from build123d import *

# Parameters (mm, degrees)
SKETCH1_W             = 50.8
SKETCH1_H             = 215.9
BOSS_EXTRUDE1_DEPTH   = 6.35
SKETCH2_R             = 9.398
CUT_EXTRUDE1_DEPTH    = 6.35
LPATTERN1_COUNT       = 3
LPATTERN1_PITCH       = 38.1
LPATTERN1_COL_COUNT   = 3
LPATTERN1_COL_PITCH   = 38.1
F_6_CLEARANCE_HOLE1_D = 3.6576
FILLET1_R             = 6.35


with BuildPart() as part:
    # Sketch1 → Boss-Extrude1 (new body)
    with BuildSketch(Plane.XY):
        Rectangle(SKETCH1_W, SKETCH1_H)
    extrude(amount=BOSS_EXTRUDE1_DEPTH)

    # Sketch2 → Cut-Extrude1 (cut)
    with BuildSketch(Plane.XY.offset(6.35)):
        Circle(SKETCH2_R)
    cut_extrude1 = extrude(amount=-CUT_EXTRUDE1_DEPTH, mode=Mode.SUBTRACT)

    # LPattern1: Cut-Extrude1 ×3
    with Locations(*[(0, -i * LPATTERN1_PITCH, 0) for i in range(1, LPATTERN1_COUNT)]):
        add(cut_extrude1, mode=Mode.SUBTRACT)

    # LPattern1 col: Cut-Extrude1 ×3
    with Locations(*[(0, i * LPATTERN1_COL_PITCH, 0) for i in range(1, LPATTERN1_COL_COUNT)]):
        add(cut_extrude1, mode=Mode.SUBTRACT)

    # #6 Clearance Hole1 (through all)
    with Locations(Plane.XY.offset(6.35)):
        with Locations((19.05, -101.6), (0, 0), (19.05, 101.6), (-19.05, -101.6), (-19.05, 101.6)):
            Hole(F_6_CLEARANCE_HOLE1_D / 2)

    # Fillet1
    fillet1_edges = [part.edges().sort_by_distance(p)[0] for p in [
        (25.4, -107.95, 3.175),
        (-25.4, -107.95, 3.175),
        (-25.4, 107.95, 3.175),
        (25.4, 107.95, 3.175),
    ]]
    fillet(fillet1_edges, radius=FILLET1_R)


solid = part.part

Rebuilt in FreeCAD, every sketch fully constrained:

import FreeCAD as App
import Part
import Sketcher

V = App.Vector
Q = App.Units.Quantity


def edges_at(feature, points):
    """Names of the edges that pass closest to the given points."""
    edges = feature.Shape.Edges
    near = lambda p: min(range(len(edges)), key=lambda i: edges[i].distToShape(Part.Vertex(*p))[0])
    return sorted({f"Edge{near(p) + 1}" for p in points})

doc = App.newDocument("Part")
body = doc.addObject("PartDesign::Body", "Body")

# Sketch on XY plane
sketch1 = body.newObject("Sketcher::SketchObject", "Sketch")
sketch1.AttachmentSupport = (doc.getObject("XY_Plane"), [""])
sketch1.MapMode = "FlatFace"
sketch1.addGeometry([
    Part.LineSegment(V(-25, 108, 0), V(-25, -108, 0)),
    Part.LineSegment(V(-25, -108, 0), V(25, -108, 0)),
    Part.LineSegment(V(25, -108, 0), V(25, 108, 0)),
    Part.LineSegment(V(25, 108, 0), V(-25, 108, 0)),
], False)
sketch1.addConstraint([
    Sketcher.Constraint("Coincident", 0, 2, 1, 1),
    Sketcher.Constraint("Coincident", 1, 2, 2, 1),
    Sketcher.Constraint("Coincident", 2, 2, 3, 1),
    Sketcher.Constraint("Coincident", 3, 2, 0, 1),
    Sketcher.Constraint("Vertical", 0),
    Sketcher.Constraint("Horizontal", 1),
    Sketcher.Constraint("Vertical", 2),
    Sketcher.Constraint("Horizontal", 3),
    Sketcher.Constraint("Symmetric", 0, 2, 2, 2, -1, 1),
    Sketcher.Constraint("DistanceX", 1, 1, 1, 2, Q("2 in")),
    Sketcher.Constraint("DistanceY", 0, 2, 0, 1, Q("8.5 in")),
])
pad1 = body.newObject("PartDesign::Pad", "Pad")
pad1.Profile = sketch1
pad1.Length = Q("0.25 in")

# Sketch on XY plane
sketch2 = body.newObject("Sketcher::SketchObject", "Sketch001")
sketch2.AttachmentSupport = (doc.getObject("XY_Plane"), [""])
sketch2.MapMode = "FlatFace"
sketch2.AttachmentOffset = App.Placement(V(0, 0, 0.25 * 25.4), App.Rotation())
sketch2.addGeometry(Part.Circle(V(0, 0, 0), V(0, 0, 1), 9), False)
sketch2.addConstraint([
    Sketcher.Constraint("Coincident", 0, 3, -1, 1),
    Sketcher.Constraint("Diameter", 0, Q("0.74 in")),
])
pocket1 = body.newObject("PartDesign::Pocket", "Pocket")
pocket1.Profile = sketch2
pocket1.Length = Q("0.25 in")
doc.recompute()

linearpattern = body.newObject("PartDesign::LinearPattern", "LinearPattern")
linearpattern.Originals = [pocket1]
linearpattern.Direction = (doc.getObject("Y_Axis"), [""])
linearpattern.Mode = "offset"
linearpattern.Offset = Q("1.5 in")
linearpattern.Occurrences = 3
linearpattern.Reversed = True
body.Tip = linearpattern
doc.recompute()

linearpattern2 = body.newObject("PartDesign::LinearPattern", "LinearPattern001")
linearpattern2.Originals = [pocket1]
linearpattern2.Direction = (doc.getObject("Y_Axis"), [""])
linearpattern2.Mode = "offset"
linearpattern2.Offset = Q("1.5 in")
linearpattern2.Occurrences = 3
body.Tip = linearpattern2

# Sketch on XY plane
sketch3 = body.newObject("Sketcher::SketchObject", "Sketch002")
sketch3.AttachmentSupport = (doc.getObject("XY_Plane"), [""])
sketch3.MapMode = "FlatFace"
sketch3.AttachmentOffset = App.Placement(V(0, 0, 0.25 * 25.4), App.Rotation())
sketch3.addGeometry([
    Part.Circle(V(19.1, -101.6, 0), V(0, 0, 1), 1.8),  # 0
    Part.Circle(V(0, 0, 0), V(0, 0, 1), 1.8),  # 1
    Part.Circle(V(19.1, 101.6, 0), V(0, 0, 1), 1.8),  # 2
    Part.Circle(V(-19.1, -101.6, 0), V(0, 0, 1), 1.8),  # 3
    Part.Circle(V(-19.1, 101.6, 0), V(0, 0, 1), 1.8),  # 4
], False)
sketch3.addConstraint([
    Sketcher.Constraint("Coincident", 1, 3, -1, 1),
    Sketcher.Constraint("Equal", 0, 1),
    Sketcher.Constraint("Equal", 1, 2),
    Sketcher.Constraint("Equal", 2, 3),
    Sketcher.Constraint("Equal", 3, 4),
    Sketcher.Constraint("Symmetric", 2, 3, 3, 3, -1, 1),
    Sketcher.Constraint("Symmetric", 0, 3, 4, 3, -1, 1),
    Sketcher.Constraint("Symmetric", 0, 3, 3, 3, -2),
    Sketcher.Constraint("Diameter", 0, Q("0.144 in")),
    Sketcher.Constraint("DistanceY", 0, 3, -1, 1, Q("4 in")),
    Sketcher.Constraint("DistanceX", 3, 3, 0, 3, Q("1.5 in")),
])
doc.recompute()
hole = body.newObject("PartDesign::Hole", "Hole")
hole.Profile = sketch3
hole.ThreadType = "None"
hole.Diameter = Q("0.144 in")
hole.DepthType = "ThroughAll"
doc.recompute()

fillet = body.newObject("PartDesign::Fillet", "Fillet")
fillet.Base = (hole, edges_at(hole, [
    (25.4, -107.95, 3.175),
    (-25.4, -107.95, 3.175),
    (-25.4, 107.95, 3.175),
    (25.4, 107.95, 3.175),
]))
fillet.Radius = Q("0.25 in")

doc.recompute()
